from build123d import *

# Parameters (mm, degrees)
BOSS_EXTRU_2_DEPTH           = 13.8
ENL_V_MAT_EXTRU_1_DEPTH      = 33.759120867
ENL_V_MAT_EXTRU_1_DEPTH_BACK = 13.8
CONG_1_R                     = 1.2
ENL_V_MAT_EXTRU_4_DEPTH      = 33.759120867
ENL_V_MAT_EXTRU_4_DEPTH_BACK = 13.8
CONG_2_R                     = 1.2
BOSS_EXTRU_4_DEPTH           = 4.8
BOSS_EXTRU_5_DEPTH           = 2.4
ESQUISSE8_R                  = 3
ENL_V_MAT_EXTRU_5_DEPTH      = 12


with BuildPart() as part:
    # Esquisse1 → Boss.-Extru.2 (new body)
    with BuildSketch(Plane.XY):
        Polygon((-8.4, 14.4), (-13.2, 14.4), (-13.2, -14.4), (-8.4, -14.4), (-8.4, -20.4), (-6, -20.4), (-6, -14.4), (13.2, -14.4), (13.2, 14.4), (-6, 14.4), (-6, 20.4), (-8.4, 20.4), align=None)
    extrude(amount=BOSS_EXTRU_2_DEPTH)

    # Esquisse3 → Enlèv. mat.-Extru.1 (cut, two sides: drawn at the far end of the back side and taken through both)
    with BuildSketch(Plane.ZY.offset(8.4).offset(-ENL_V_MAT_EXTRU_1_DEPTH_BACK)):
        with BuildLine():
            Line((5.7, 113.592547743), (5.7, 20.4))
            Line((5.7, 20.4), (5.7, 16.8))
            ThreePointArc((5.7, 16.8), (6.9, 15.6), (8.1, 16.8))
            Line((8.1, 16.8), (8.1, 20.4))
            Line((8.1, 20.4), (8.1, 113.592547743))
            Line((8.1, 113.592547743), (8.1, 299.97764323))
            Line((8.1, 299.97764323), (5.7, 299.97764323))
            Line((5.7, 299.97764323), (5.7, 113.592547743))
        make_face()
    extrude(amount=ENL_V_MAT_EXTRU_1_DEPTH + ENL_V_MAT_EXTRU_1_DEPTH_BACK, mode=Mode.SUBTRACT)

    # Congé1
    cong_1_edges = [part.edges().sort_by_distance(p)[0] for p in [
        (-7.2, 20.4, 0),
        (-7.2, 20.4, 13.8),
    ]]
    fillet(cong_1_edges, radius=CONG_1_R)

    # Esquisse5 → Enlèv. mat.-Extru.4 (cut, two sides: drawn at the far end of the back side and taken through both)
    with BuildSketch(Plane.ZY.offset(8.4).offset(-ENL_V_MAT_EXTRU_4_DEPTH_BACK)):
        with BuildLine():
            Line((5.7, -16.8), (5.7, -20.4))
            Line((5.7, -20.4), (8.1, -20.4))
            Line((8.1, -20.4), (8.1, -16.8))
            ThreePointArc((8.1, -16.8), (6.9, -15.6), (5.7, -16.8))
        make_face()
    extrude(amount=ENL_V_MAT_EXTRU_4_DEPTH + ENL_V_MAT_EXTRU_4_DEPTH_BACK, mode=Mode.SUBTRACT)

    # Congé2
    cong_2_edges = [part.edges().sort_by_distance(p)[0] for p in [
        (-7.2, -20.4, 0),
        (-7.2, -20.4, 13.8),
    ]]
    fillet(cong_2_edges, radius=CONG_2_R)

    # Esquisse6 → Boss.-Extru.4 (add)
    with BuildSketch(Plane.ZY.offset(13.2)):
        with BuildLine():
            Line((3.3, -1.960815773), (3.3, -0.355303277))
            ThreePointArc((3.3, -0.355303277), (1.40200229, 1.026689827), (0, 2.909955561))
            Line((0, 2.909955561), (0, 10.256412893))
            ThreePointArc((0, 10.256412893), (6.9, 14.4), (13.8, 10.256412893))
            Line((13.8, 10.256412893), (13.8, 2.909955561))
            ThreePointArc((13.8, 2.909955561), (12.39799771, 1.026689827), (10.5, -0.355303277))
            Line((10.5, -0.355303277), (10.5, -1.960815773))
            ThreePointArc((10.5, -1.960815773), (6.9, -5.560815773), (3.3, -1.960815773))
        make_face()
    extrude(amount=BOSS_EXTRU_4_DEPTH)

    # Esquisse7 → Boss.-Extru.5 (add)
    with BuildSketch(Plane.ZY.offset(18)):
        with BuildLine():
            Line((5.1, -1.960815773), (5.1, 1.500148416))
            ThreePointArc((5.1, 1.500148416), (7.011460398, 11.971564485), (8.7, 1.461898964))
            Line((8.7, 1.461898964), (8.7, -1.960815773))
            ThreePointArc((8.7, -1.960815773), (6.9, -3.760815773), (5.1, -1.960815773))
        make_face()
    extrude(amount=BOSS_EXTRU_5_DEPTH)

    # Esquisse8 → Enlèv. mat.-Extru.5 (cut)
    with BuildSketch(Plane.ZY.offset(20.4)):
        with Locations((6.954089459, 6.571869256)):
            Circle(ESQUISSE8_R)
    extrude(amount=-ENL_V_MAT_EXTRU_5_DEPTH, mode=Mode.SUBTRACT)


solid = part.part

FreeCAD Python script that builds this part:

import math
import FreeCAD as App
import Part
import Sketcher

V = App.Vector
Q = App.Units.Quantity


def edges_at(feature, points):
    """Names of the edges that pass closest to the given points."""
    edges = feature.Shape.Edges
    near = lambda p: min(range(len(edges)), key=lambda i: edges[i].distToShape(Part.Vertex(*p))[0])
    return sorted({f"Edge{near(p) + 1}" for p in points})


def add_polygon(sketch, points):
    """Adds a closed chain of lines whose ends are joined by coincident constraints."""
    first, n = sketch.GeometryCount, len(points)
    for a, b in zip(points, points[1:] + points[:1]):
        sketch.addGeometry(Part.LineSegment(App.Vector(*a, 0), App.Vector(*b, 0)), False)
    for i in range(n):
        sketch.addConstraint(Sketcher.Constraint("Coincident", first + i, 2, first + (i + 1) % n, 1))

doc = App.newDocument("Part")
body = doc.addObject("PartDesign::Body", "Body")

# Sketch on XY plane
sketch1 = body.newObject("Sketcher::SketchObject", "Sketch")
sketch1.AttachmentSupport = (doc.getObject("XY_Plane"), [""])
sketch1.MapMode = "FlatFace"
add_polygon(sketch1, [(-8.4, 14.4), (-13.2, 14.4), (-13.2, -14.4), (-8.4, -14.4), (-8.4, -20.4), (-6, -20.4), (-6, -14.4), (13.2, -14.4), (13.2, 14.4), (-6, 14.4), (-6, 20.4), (-8.4, 20.4)])  # lines 0-11
sketch1.addConstraint(Sketcher.Constraint("Horizontal", 0))
sketch1.addConstraint(Sketcher.Constraint("Vertical", 1))
sketch1.addConstraint(Sketcher.Constraint("Horizontal", 2))
sketch1.addConstraint(Sketcher.Constraint("Vertical", 3))
sketch1.addConstraint(Sketcher.Constraint("Horizontal", 4))
sketch1.addConstraint(Sketcher.Constraint("Vertical", 5))
sketch1.addConstraint(Sketcher.Constraint("Horizontal", 6))
sketch1.addConstraint(Sketcher.Constraint("Vertical", 7))
sketch1.addConstraint(Sketcher.Constraint("Horizontal", 8))
sketch1.addConstraint(Sketcher.Constraint("Vertical", 9))
sketch1.addConstraint(Sketcher.Constraint("Horizontal", 10))
sketch1.addConstraint(Sketcher.Constraint("Vertical", 11))
sketch1.addConstraint(Sketcher.Constraint("Symmetric", 0, 2, 6, 2, -1, 1))
sketch1.addConstraint(Sketcher.Constraint("Symmetric", 5, 2, 8, 2, -1))
sketch1.addConstraint(Sketcher.Constraint("Symmetric", 3, 2, 10, 2, -1))
sketch1.addConstraint(Sketcher.Constraint("Horizontal", 2, 2, 5, 2))
sketch1.addConstraint(Sketcher.Constraint("DistanceY", 3, 2, 3, 1, Q("6 mm")))
sketch1.addConstraint(Sketcher.Constraint("DistanceX", 0, 2, 0, 1, Q("4.8 mm")))
sketch1.addConstraint(Sketcher.Constraint("DistanceX", 4, 1, 4, 2, Q("2.4 mm")))
sketch1.addConstraint(Sketcher.Constraint("DistanceX", 6, 1, 6, 2, Q("19.2 mm")))
sketch1.addConstraint(Sketcher.Constraint("DistanceY", 1, 2, 1, 1, Q("28.8 mm")))
pad1 = body.newObject("PartDesign::Pad", "Pad")
pad1.Profile = sketch1
pad1.Length = 13.8

# Sketch on YZ plane
sketch2 = body.newObject("Sketcher::SketchObject", "Sketch001")
sketch2.AttachmentSupport = (doc.getObject("YZ_Plane"), [""])
sketch2.MapMode = "FlatFace"
sketch2.AttachmentOffset = App.Placement(V(0, 0, -8.4), App.Rotation())
sketch2.addGeometry(Part.ArcOfCircle(Part.Circle(V(16.8, 6.9, 0), V(0, 0, 1), 1.2), math.radians(90), math.radians(270)), False)
sketch2.addGeometry(Part.LineSegment(V(16.8, 8.1, 0), V(300, 8.1, 0)), False)
sketch2.addGeometry(Part.LineSegment(V(300, 8.1, 0), V(300, 5.7, 0)), False)
sketch2.addGeometry(Part.LineSegment(V(300, 5.7, 0), V(16.8, 5.7, 0)), False)
sketch2.addConstraint(Sketcher.Constraint("Tangent", 0, 1, 1, 1))
sketch2.addConstraint(Sketcher.Constraint("Coincident", 1, 2, 2, 1))
sketch2.addConstraint(Sketcher.Constraint("Coincident", 2, 2, 3, 1))
sketch2.addConstraint(Sketcher.Constraint("Tangent", 3, 2, 0, 2))
sketch2.addConstraint(Sketcher.Constraint("Horizontal", 1))
sketch2.addConstraint(Sketcher.Constraint("Vertical", 2))
sketch2.addConstraint(Sketcher.Constraint("Horizontal", 3))
sketch2.addConstraint(Sketcher.Constraint("Radius", 0, Q("1.2 mm")))
sketch2.addConstraint(Sketcher.Constraint("DistanceX", -1, 1, 0, 3, Q("16.8 mm")))
sketch2.addConstraint(Sketcher.Constraint("DistanceY", -1, 1, 0, 3, Q("6.9 mm")))
sketch2.addConstraint(Sketcher.Constraint("DistanceX", 1, 1, 1, 2, Q("283.177643 mm")))
pocket1 = body.newObject("PartDesign::Pocket", "Pocket")
pocket1.Profile = sketch2
pocket1.Type = "ThroughAll"
pocket1.Midplane = True
doc.recompute()

fillet = body.newObject("PartDesign::Fillet", "Fillet")
fillet.Base = (pocket1, edges_at(pocket1, [(-7.2, 20.4, 0), (-7.2, 20.4, 13.8)]))
fillet.Radius = 1.2

# Sketch on YZ plane
sketch3 = body.newObject("Sketcher::SketchObject", "Sketch002")
sketch3.AttachmentSupport = (doc.getObject("YZ_Plane"), [""])
sketch3.MapMode = "FlatFace"
sketch3.AttachmentOffset = App.Placement(V(0, 0, -8.4), App.Rotation())
sketch3.addGeometry(Part.LineSegment(V(-16.8, 5.7, 0), V(-20.4, 5.7, 0)), False)
sketch3.addGeometry(Part.LineSegment(V(-20.4, 5.7, 0), V(-20.4, 8.1, 0)), False)
sketch3.addGeometry(Part.LineSegment(V(-20.4, 8.1, 0), V(-16.8, 8.1, 0)), False)
sketch3.addGeometry(Part.ArcOfCircle(Part.Circle(V(-16.8, 6.9, 0), V(0, 0, 1), 1.2), math.radians(-90), math.radians(90)), False)
sketch3.addConstraint(Sketcher.Constraint("Coincident", 0, 2, 1, 1))
sketch3.addConstraint(Sketcher.Constraint("Coincident", 1, 2, 2, 1))
sketch3.addConstraint(Sketcher.Constraint("Tangent", 2, 2, 3, 2))
sketch3.addConstraint(Sketcher.Constraint("Tangent", 3, 1, 0, 1))
sketch3.addConstraint(Sketcher.Constraint("Horizontal", 0))
sketch3.addConstraint(Sketcher.Constraint("Vertical", 1))
sketch3.addConstraint(Sketcher.Constraint("Horizontal", 2))
sketch3.addConstraint(Sketcher.Constraint("Radius", 3, Q("1.2 mm")))
sketch3.addConstraint(Sketcher.Constraint("DistanceX", 0, 2, 0, 1, Q("3.6 mm")))
sketch3.addConstraint(Sketcher.Constraint("DistanceX", 3, 3, -1, 1, Q("16.8 mm")))
sketch3.addConstraint(Sketcher.Constraint("DistanceY", -1, 1, 3, 3, Q("6.9 mm")))
pocket2 = body.newObject("PartDesign::Pocket", "Pocket001")
pocket2.Profile = sketch3
pocket2.Type = "ThroughAll"
pocket2.Midplane = True
doc.recompute()

fillet2 = body.newObject("PartDesign::Fillet", "Fillet001")
fillet2.Base = (pocket2, edges_at(pocket2, [(-7.2, -20.4, 0), (-7.2, -20.4, 13.8)]))
fillet2.Radius = 1.2

# Sketch on YZ plane
sketch4 = body.newObject("Sketcher::SketchObject", "Sketch003")
sketch4.AttachmentSupport = (doc.getObject("YZ_Plane"), [""])
sketch4.MapMode = "FlatFace"
sketch4.AttachmentOffset = App.Placement(V(0, 0, -13.2), App.Rotation())
sketch4.addGeometry(Part.LineSegment(V(-0.4, 3.3, 0), V(-2, 3.3, 0)), False)
sketch4.addGeometry(Part.ArcOfCircle(Part.Circle(V(-2, 6.9, 0), V(0, 0, 1), 3.6), math.radians(90), math.radians(270)), False)
sketch4.addGeometry(Part.LineSegment(V(-2, 10.5, 0), V(-0.4, 10.5, 0)), False)
sketch4.addGeometry(Part.ArcOfCircle(Part.Circle(V(6.6, 6.9, 0), V(0, 0, 1), 7.8), math.radians(118), math.radians(153)), False)
sketch4.addGeometry(Part.LineSegment(V(2.9, 13.8, 0), V(10.3, 13.8, 0)), False)
sketch4.addGeometry(Part.ArcOfCircle(Part.Circle(V(6.6, 6.9, 0), V(0, 0, 1), 7.8), math.radians(-62), math.radians(62)), False)
sketch4.addGeometry(Part.LineSegment(V(10.3, 0, 0), V(2.9, 0, 0)), False)
sketch4.addGeometry(Part.ArcOfCircle(Part.Circle(V(6.6, 6.9, 0), V(0, 0, 1), 7.8), math.radians(-153), math.radians(-118)), False)
sketch4.addConstraint(Sketcher.Constraint("Tangent", 0, 2, 1, 2))
sketch4.addConstraint(Sketcher.Constraint("Tangent", 1, 1, 2, 1))
sketch4.addConstraint(Sketcher.Constraint("Coincident", 2, 2, 3, 2))
sketch4.addConstraint(Sketcher.Constraint("Coincident", 3, 1, 4, 1))
sketch4.addConstraint(Sketcher.Constraint("Coincident", 4, 2, 5, 2))
sketch4.addConstraint(Sketcher.Constraint("Coincident", 5, 1, 6, 1))
sketch4.addConstraint(Sketcher.Constraint("Coincident", 6, 2, 7, 2))
sketch4.addConstraint(Sketcher.Constraint("Coincident", 7, 1, 0, 1))
sketch4.addConstraint(Sketcher.Constraint("Horizontal", 0))
sketch4.addConstraint(Sketcher.Constraint("Horizontal", 2))
sketch4.addConstraint(Sketcher.Constraint("Horizontal", 4))
sketch4.addConstraint(Sketcher.Constraint("Horizontal", 6))
sketch4.addConstraint(Sketcher.Constraint("Coincident", 5, 3, 3, 3))
sketch4.addConstraint(Sketcher.Constraint("Coincident", 7, 3, 3, 3))
sketch4.addConstraint(Sketcher.Constraint("Equal", 3, 5))
sketch4.addConstraint(Sketcher.Constraint("Equal", 5, 7))
sketch4.addConstraint(Sketcher.Constraint("PointOnObject", 5, 1, -1))
sketch4.addConstraint(Sketcher.Constraint("Horizontal", 1, 3, 3, 3))
sketch4.addConstraint(Sketcher.Constraint("Vertical", 4, 2, 5, 1))
sketch4.addConstraint(Sketcher.Constraint("Radius", 1, Q("3.6 mm")))
sketch4.addConstraint(Sketcher.Constraint("DistanceY", -1, 1, 1, 3, Q("6.9 mm")))
sketch4.addConstraint(Sketcher.Constraint("Radius", 3, Q("7.816816 mm")))
sketch4.addConstraint(Sketcher.Constraint("DistanceX", 1, 3, 3, 3, Q("8.544 mm")))
sketch4.addConstraint(Sketcher.Constraint("DistanceX", 1, 3, -1, 1, Q("1.960816 mm")))
pad2 = body.newObject("PartDesign::Pad", "Pad001")
pad2.Profile = sketch4
pad2.Length = 4.8
pad2.Reversed = True

# Sketch on YZ plane
sketch5 = body.newObject("Sketcher::SketchObject", "Sketch004")
sketch5.AttachmentSupport = (doc.getObject("YZ_Plane"), [""])
sketch5.MapMode = "FlatFace"
sketch5.AttachmentOffset = App.Placement(V(0, 0, -18), App.Rotation())
sketch5.addGeometry(Part.LineSegment(V(1.5, 5.1, 0), V(-2, 5.1, 0)), False)
sketch5.addGeometry(Part.ArcOfCircle(Part.Circle(V(-2, 6.9, 0), V(0, 0, 1), 1.8), math.radians(90), math.radians(270)), False)
sketch5.addGeometry(Part.LineSegment(V(-2, 8.7, 0), V(1.5, 8.7, 0)), False)
sketch5.addGeometry(Part.ArcOfCircle(Part.Circle(V(6.6, 7, 0), V(0, 0, 1), 5.4), math.radians(-160), math.radians(161)), False)
sketch5.addConstraint(Sketcher.Constraint("Tangent", 0, 2, 1, 2))
sketch5.addConstraint(Sketcher.Constraint("Tangent", 1, 1, 2, 1))
sketch5.addConstraint(Sketcher.Constraint("Coincident", 2, 2, 3, 2))
sketch5.addConstraint(Sketcher.Constraint("Coincident", 3, 1, 0, 1))
sketch5.addConstraint(Sketcher.Constraint("Horizontal", 0))
sketch5.addConstraint(Sketcher.Constraint("Horizontal", 2))
sketch5.addConstraint(Sketcher.Constraint("Radius", 1, Q("1.8 mm")))
sketch5.addConstraint(Sketcher.Constraint("Radius", 3, Q("5.4 mm")))
sketch5.addConstraint(Sketcher.Constraint("DistanceY", -1, 1, 1, 3, Q("6.9 mm")))
sketch5.addConstraint(Sketcher.Constraint("DistanceX", -1, 1, 2, 2, Q("1.461899 mm")))
sketch5.addConstraint(Sketcher.Constraint("DistanceX", 0, 2, 0, 1, Q("3.460964 mm")))
sketch5.addConstraint(Sketcher.Constraint("DistanceX", 2, 1, 2, 2, Q("3.422715 mm")))
pad3 = body.newObject("PartDesign::Pad", "Pad002")
pad3.Profile = sketch5
pad3.Length = 2.4
pad3.Reversed = True

# Sketch on YZ plane
sketch6 = body.newObject("Sketcher::SketchObject", "Sketch005")
sketch6.AttachmentSupport = (doc.getObject("YZ_Plane"), [""])
sketch6.MapMode = "FlatFace"
sketch6.AttachmentOffset = App.Placement(V(0, 0, -20.4), App.Rotation())
sketch6.addGeometry(Part.Circle(V(6.6, 7, 0), V(0, 0, 1), 3), False)
sketch6.addConstraint(Sketcher.Constraint("Diameter", 0, Q("6 mm")))
sketch6.addConstraint(Sketcher.Constraint("DistanceX", -1, 1, 0, 3, Q("6.571869 mm")))
sketch6.addConstraint(Sketcher.Constraint("DistanceY", -1, 1, 0, 3, Q("6.954089 mm")))
pocket3 = body.newObject("PartDesign::Pocket", "Pocket002")
pocket3.Profile = sketch6
pocket3.Length = 12
pocket3.Reversed = True

doc.recompute()
